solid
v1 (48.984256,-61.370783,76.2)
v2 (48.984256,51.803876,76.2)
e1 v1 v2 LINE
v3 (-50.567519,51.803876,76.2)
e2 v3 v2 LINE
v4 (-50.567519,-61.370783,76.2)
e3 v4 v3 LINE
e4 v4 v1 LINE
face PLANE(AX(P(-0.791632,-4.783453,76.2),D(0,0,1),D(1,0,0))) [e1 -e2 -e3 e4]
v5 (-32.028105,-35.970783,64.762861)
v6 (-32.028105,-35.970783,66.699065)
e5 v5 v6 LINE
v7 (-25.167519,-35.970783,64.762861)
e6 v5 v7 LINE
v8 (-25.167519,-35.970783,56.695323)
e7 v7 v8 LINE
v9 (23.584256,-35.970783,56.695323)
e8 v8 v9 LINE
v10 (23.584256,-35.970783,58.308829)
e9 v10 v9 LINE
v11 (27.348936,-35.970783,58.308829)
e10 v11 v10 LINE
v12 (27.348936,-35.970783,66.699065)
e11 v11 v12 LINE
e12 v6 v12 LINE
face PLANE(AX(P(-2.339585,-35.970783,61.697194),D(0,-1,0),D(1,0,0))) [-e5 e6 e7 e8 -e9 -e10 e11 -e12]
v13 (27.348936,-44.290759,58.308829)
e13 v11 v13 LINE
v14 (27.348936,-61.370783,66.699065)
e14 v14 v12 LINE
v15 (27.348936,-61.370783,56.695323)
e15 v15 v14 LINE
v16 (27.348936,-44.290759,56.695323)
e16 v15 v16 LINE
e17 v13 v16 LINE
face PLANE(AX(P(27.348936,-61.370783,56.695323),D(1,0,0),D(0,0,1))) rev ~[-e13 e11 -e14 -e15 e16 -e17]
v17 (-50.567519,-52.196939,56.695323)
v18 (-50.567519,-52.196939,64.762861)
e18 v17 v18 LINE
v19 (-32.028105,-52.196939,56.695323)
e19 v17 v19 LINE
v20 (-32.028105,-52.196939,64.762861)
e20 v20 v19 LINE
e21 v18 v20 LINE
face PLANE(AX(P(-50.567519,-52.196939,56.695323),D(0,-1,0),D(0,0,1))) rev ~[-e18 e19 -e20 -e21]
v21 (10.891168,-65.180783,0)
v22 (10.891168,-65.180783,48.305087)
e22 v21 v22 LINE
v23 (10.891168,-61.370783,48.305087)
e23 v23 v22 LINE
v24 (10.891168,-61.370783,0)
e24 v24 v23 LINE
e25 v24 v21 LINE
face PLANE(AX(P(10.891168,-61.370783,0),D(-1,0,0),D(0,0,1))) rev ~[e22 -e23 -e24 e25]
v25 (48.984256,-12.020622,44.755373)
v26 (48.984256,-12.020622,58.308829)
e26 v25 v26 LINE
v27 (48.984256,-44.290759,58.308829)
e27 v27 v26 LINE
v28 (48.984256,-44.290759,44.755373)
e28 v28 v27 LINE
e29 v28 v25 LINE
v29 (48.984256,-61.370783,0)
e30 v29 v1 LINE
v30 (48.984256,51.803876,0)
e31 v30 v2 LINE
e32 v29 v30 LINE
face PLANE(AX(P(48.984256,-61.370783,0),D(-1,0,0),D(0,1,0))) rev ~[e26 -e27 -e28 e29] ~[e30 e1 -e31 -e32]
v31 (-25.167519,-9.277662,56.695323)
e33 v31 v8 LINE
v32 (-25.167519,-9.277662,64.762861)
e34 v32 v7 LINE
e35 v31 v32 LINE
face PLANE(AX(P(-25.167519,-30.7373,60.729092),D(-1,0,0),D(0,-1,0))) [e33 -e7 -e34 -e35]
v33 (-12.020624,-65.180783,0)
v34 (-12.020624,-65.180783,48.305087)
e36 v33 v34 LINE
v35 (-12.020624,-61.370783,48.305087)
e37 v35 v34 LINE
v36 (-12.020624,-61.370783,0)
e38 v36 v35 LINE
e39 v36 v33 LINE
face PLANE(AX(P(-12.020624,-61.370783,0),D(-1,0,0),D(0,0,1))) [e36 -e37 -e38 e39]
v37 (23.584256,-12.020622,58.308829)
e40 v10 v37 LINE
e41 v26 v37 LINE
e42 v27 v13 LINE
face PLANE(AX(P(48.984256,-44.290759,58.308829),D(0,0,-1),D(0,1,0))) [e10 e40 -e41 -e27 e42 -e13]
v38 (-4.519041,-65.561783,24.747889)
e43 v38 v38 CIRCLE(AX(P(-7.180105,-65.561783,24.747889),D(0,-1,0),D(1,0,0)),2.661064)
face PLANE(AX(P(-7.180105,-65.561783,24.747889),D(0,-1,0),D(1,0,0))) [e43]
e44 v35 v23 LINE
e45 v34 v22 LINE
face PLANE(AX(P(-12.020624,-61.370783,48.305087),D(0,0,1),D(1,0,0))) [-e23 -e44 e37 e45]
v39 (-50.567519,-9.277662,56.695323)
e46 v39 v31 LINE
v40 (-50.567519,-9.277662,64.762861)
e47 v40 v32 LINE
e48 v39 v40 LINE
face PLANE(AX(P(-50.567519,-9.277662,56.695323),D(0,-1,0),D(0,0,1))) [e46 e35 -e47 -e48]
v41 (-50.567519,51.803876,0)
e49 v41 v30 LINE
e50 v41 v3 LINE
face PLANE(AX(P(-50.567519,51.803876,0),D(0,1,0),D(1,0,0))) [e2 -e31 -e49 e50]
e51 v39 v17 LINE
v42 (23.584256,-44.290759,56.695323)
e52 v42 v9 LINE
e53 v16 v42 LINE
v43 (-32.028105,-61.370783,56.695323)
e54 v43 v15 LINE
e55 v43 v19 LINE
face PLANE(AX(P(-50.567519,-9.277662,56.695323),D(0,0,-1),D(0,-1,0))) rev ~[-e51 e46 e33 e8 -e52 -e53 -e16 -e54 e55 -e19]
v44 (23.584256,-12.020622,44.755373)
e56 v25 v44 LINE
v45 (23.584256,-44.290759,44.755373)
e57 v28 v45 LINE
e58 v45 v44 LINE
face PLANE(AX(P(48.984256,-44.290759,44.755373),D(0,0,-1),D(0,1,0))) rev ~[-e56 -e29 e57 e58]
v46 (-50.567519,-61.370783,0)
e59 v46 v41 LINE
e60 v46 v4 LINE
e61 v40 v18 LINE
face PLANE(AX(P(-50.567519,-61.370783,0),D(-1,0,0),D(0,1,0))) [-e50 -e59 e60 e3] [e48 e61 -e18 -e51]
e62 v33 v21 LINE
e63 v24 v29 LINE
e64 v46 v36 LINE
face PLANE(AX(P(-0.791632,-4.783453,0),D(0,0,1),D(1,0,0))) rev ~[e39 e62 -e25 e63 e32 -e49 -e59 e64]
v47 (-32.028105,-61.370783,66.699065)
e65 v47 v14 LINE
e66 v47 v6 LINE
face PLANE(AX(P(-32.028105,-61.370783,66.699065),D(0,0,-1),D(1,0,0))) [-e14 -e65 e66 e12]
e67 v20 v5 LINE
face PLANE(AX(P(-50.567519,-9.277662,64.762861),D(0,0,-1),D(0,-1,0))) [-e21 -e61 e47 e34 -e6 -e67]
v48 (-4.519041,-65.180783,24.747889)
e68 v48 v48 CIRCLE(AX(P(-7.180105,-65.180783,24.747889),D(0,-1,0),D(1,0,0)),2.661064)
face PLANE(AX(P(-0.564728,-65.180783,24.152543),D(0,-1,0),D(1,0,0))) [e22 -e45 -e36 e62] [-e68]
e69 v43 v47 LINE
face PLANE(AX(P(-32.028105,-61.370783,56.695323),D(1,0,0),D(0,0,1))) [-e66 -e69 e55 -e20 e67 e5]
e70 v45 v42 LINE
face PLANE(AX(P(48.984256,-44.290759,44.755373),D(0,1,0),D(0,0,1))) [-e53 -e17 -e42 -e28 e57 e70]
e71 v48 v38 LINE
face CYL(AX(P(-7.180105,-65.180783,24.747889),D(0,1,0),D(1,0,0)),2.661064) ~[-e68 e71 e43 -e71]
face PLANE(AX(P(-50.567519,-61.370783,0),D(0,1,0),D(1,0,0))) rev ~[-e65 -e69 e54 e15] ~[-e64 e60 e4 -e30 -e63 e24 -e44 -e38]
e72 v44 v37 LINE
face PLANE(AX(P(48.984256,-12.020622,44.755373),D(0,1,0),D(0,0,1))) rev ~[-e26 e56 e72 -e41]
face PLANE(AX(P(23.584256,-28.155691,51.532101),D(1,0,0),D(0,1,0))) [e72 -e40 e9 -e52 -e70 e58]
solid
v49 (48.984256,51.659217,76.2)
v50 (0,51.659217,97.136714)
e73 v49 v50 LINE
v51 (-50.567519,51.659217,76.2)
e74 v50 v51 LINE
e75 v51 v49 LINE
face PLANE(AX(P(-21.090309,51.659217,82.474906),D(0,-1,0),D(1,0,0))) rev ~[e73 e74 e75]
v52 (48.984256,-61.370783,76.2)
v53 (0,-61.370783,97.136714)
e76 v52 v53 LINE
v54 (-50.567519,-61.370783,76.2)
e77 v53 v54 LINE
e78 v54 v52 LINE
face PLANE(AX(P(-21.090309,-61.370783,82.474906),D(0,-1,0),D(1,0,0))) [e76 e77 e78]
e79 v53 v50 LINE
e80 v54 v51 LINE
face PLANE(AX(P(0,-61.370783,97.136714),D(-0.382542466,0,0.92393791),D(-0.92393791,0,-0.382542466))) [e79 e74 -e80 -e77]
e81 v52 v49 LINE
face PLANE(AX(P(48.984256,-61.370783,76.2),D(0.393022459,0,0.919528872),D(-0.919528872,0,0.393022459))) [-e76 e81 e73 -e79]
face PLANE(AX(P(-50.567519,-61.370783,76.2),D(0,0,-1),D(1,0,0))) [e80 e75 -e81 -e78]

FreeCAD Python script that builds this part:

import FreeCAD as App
import Part
import Sketcher
from FreeCAD import Vector
Q = App.Units.Quantity

doc = App.newDocument("Part")
params = doc.addObject("Spreadsheet::Sheet", "Params")
for row, (alias, value) in enumerate([
    ("pad1_length", "3 in"),
    ("pocket1_length", "1 in"),
    ("pad2_length", "0.15 in"),
    ("pocket2_length", "1 in"),
    ("pocket3_length", "1 in"),
    ("pad3_length", "0.015 in"),
    ("pad4_length", "4.45 in"),
], start=1):
    params.set(f"A{row}", alias)
    params.set(f"B{row}", "=" + value)
    params.setAlias(f"B{row}", alias)

body = doc.addObject("PartDesign::Body", "Body")

# Sketch on XY plane
sketch1 = body.newObject("Sketcher::SketchObject", "Sketch")
sketch1.AttachmentSupport = (doc.getObject("XY_Plane"), [""])
sketch1.MapMode = "FlatFace"
sketch1.addGeometry([
    Part.LineSegment(Vector(-51, 52, 0), Vector(-51, -61, 0)),
    Part.LineSegment(Vector(-51, -61, 0), Vector(49, -61, 0)),
    Part.LineSegment(Vector(49, -61, 0), Vector(49, 52, 0)),
    Part.LineSegment(Vector(49, 52, 0), Vector(-51, 52, 0)),
], False)
sketch1.addConstraint([
    Sketcher.Constraint("Coincident", 0, 2, 1, 1),
    Sketcher.Constraint("Coincident", 1, 2, 2, 1),
    Sketcher.Constraint("Coincident", 2, 2, 3, 1),
    Sketcher.Constraint("Coincident", 3, 2, 0, 1),
    Sketcher.Constraint("Vertical", 0),
    Sketcher.Constraint("Horizontal", 1),
    Sketcher.Constraint("Vertical", 2),
    Sketcher.Constraint("Horizontal", 3),
    Sketcher.Constraint("DistanceY", 0, 2, 0, 1, Q("113.174658 mm")),
    Sketcher.Constraint("DistanceX", 1, 1, 1, 2, Q("99.551775 mm")),
    Sketcher.Constraint("DistanceX", 0, 2, -1, 1, Q("50.567519 mm")),
    Sketcher.Constraint("DistanceY", 0, 2, -1, 1, Q("61.370783 mm")),
])
pad1 = body.newObject("PartDesign::Pad", "Pad")
pad1.Profile = sketch1
pad1.setExpression("Length", "Params.pad1_length")

# Sketch on YZ plane
sketch2 = body.newObject("Sketcher::SketchObject", "Sketch001")
sketch2.AttachmentSupport = (doc.getObject("YZ_Plane"), [""])
sketch2.MapMode = "FlatFace"
sketch2.AttachmentOffset = App.Placement(Vector(0, 0, 48.984256), App.Rotation())
sketch2.addGeometry([
    Part.LineSegment(Vector(-44, 58, 0), Vector(-44, 45, 0)),
    Part.LineSegment(Vector(-44, 45, 0), Vector(-12, 45, 0)),
    Part.LineSegment(Vector(-12, 45, 0), Vector(-12, 58, 0)),
    Part.LineSegment(Vector(-12, 58, 0), Vector(-44, 58, 0)),
], False)
sketch2.addConstraint([
    Sketcher.Constraint("Coincident", 0, 2, 1, 1),
    Sketcher.Constraint("Coincident", 1, 2, 2, 1),
    Sketcher.Constraint("Coincident", 2, 2, 3, 1),
    Sketcher.Constraint("Coincident", 3, 2, 0, 1),
    Sketcher.Constraint("Vertical", 0),
    Sketcher.Constraint("Horizontal", 1),
    Sketcher.Constraint("Vertical", 2),
    Sketcher.Constraint("Horizontal", 3),
    Sketcher.Constraint("DistanceX", 1, 1, 1, 2, Q("32.270136 mm")),
    Sketcher.Constraint("DistanceY", 0, 2, 0, 1, Q("13.553455 mm")),
    Sketcher.Constraint("DistanceX", 0, 2, -1, 1, Q("44.290759 mm")),
    Sketcher.Constraint("DistanceY", -1, 1, 2, 2, Q("58.308829 mm")),
])
pocket1 = body.newObject("PartDesign::Pocket", "Pocket")
pocket1.Profile = sketch2
pocket1.setExpression("Length", "Params.pocket1_length")

# Sketch on XZ plane
sketch3 = body.newObject("Sketcher::SketchObject", "Sketch002")
sketch3.AttachmentSupport = (doc.getObject("XZ_Plane"), [""])
sketch3.MapMode = "FlatFace"
sketch3.AttachmentOffset = App.Placement(Vector(0, 0, 61.370783), App.Rotation())
sketch3.addGeometry([
    Part.LineSegment(Vector(-12, 48, 0), Vector(-12, 0, 0)),
    Part.LineSegment(Vector(-12, 0, 0), Vector(11, 0, 0)),
    Part.LineSegment(Vector(11, 0, 0), Vector(11, 48, 0)),
    Part.LineSegment(Vector(11, 48, 0), Vector(-12, 48, 0)),
], False)
sketch3.addConstraint([
    Sketcher.Constraint("Coincident", 0, 2, 1, 1),
    Sketcher.Constraint("Coincident", 1, 2, 2, 1),
    Sketcher.Constraint("Coincident", 2, 2, 3, 1),
    Sketcher.Constraint("Coincident", 3, 2, 0, 1),
    Sketcher.Constraint("Vertical", 0),
    Sketcher.Constraint("Horizontal", 1),
    Sketcher.Constraint("Vertical", 2),
    Sketcher.Constraint("Horizontal", 3),
    Sketcher.Constraint("PointOnObject", 0, 2, -1),
    Sketcher.Constraint("DistanceX", 1, 1, 1, 2, Q("22.911793 mm")),
    Sketcher.Constraint("DistanceY", 0, 2, 0, 1, Q("48.305087 mm")),
    Sketcher.Constraint("DistanceX", -1, 1, 1, 2, Q("10.891168 mm")),
])
pad2 = body.newObject("PartDesign::Pad", "Pad001")
pad2.Profile = sketch3
pad2.setExpression("Length", "Params.pad2_length")

# Sketch on XZ plane
sketch4 = body.newObject("Sketcher::SketchObject", "Sketch003")
sketch4.AttachmentSupport = (doc.getObject("XZ_Plane"), [""])
sketch4.MapMode = "FlatFace"
sketch4.AttachmentOffset = App.Placement(Vector(0, 0, 61.370783), App.Rotation())
sketch4.addGeometry([
    Part.LineSegment(Vector(-32, 67, 0), Vector(-32, 57, 0)),
    Part.LineSegment(Vector(-32, 57, 0), Vector(27, 57, 0)),
    Part.LineSegment(Vector(27, 57, 0), Vector(27, 67, 0)),
    Part.LineSegment(Vector(27, 67, 0), Vector(-32, 67, 0)),
], False)
sketch4.addConstraint([
    Sketcher.Constraint("Coincident", 0, 2, 1, 1),
    Sketcher.Constraint("Coincident", 1, 2, 2, 1),
    Sketcher.Constraint("Coincident", 2, 2, 3, 1),
    Sketcher.Constraint("Coincident", 3, 2, 0, 1),
    Sketcher.Constraint("Vertical", 0),
    Sketcher.Constraint("Horizontal", 1),
    Sketcher.Constraint("Vertical", 2),
    Sketcher.Constraint("Horizontal", 3),
    Sketcher.Constraint("DistanceX", 1, 1, 1, 2, Q("59.377041 mm")),
    Sketcher.Constraint("DistanceY", 0, 2, 0, 1, Q("10.003742 mm")),
    Sketcher.Constraint("DistanceX", 0, 2, -1, 1, Q("32.028105 mm")),
    Sketcher.Constraint("DistanceY", -1, 1, 0, 2, Q("56.695323 mm")),
])
pocket2 = body.newObject("PartDesign::Pocket", "Pocket001")
pocket2.Profile = sketch4
pocket2.setExpression("Length", "Params.pocket2_length")

# Sketch on YZ plane
sketch5 = body.newObject("Sketcher::SketchObject", "Sketch004")
sketch5.AttachmentSupport = (doc.getObject("YZ_Plane"), [""])
sketch5.MapMode = "FlatFace"
sketch5.AttachmentOffset = App.Placement(Vector(0, 0, -50.567519), App.Rotation())
sketch5.addGeometry([
    Part.LineSegment(Vector(-9, 65, 0), Vector(-9, 57, 0)),
    Part.LineSegment(Vector(-9, 57, 0), Vector(-52, 57, 0)),
    Part.LineSegment(Vector(-52, 57, 0), Vector(-52, 65, 0)),
    Part.LineSegment(Vector(-52, 65, 0), Vector(-9, 65, 0)),
], False)
sketch5.addConstraint([
    Sketcher.Constraint("Coincident", 0, 2, 1, 1),
    Sketcher.Constraint("Coincident", 1, 2, 2, 1),
    Sketcher.Constraint("Coincident", 2, 2, 3, 1),
    Sketcher.Constraint("Coincident", 3, 2, 0, 1),
    Sketcher.Constraint("Vertical", 0),
    Sketcher.Constraint("Horizontal", 1),
    Sketcher.Constraint("Vertical", 2),
    Sketcher.Constraint("Horizontal", 3),
    Sketcher.Constraint("DistanceX", 1, 2, 1, 1, Q("42.919276 mm")),
    Sketcher.Constraint("DistanceY", 0, 2, 0, 1, Q("8.067537 mm")),
    Sketcher.Constraint("DistanceX", 1, 2, -1, 1, Q("52.196939 mm")),
    Sketcher.Constraint("DistanceY", -1, 1, 2, 2, Q("64.762861 mm")),
])
pocket3 = body.newObject("PartDesign::Pocket", "Pocket002")
pocket3.Profile = sketch5
pocket3.setExpression("Length", "Params.pocket3_length")
pocket3.Reversed = True

# Sketch on XZ plane
sketch6 = body.newObject("Sketcher::SketchObject", "Sketch005")
sketch6.AttachmentSupport = (doc.getObject("XZ_Plane"), [""])
sketch6.MapMode = "FlatFace"
sketch6.AttachmentOffset = App.Placement(Vector(0, 0, 65.180783), App.Rotation())
sketch6.addGeometry(Part.Circle(Vector(-7.2, 24.7, 0), Vector(0, 0, 1), 2.7), False)
sketch6.addConstraint([
    Sketcher.Constraint("Diameter", 0, Q("5.322128 mm")),
    Sketcher.Constraint("DistanceY", -1, 1, 0, 3, Q("24.747889 mm")),
    Sketcher.Constraint("DistanceX", 0, 3, -1, 1, Q("7.180105 mm")),
])
pad3 = body.newObject("PartDesign::Pad", "Pad002")
pad3.Profile = sketch6
pad3.setExpression("Length", "Params.pad3_length")
body2 = doc.addObject("PartDesign::Body", "Body001")

# Sketch on XZ plane
sketch7 = body2.newObject("Sketcher::SketchObject", "Sketch006")
sketch7.AttachmentSupport = (doc.getObject("XZ_Plane001"), [""])
sketch7.MapMode = "FlatFace"
sketch7.AttachmentOffset = App.Placement(Vector(0, 0, 61.370783), App.Rotation())
sketch7.addGeometry([
    Part.LineSegment(Vector(0, 97, 0), Vector(-51, 76, 0)),
    Part.LineSegment(Vector(-51, 76, 0), Vector(49, 76, 0)),
    Part.LineSegment(Vector(49, 76, 0), Vector(0, 97, 0)),
], False)
sketch7.addConstraint([
    Sketcher.Constraint("Coincident", 0, 2, 1, 1),
    Sketcher.Constraint("Coincident", 1, 2, 2, 1),
    Sketcher.Constraint("Coincident", 2, 2, 0, 1),
    Sketcher.Constraint("Horizontal", 1),
    Sketcher.Constraint("PointOnObject", 2, 2, -2),
    Sketcher.Constraint("DistanceY", -1, 1, 0, 2, Q("3 in")),
    Sketcher.Constraint("Distance", 0, Q("54.73043 mm")),
    Sketcher.Constraint("DistanceX", 1, 1, 1, 2, Q("99.551775 mm")),
    Sketcher.Constraint("DistanceX", 0, 2, -1, 1, Q("50.567519 mm")),
])
pad4 = body2.newObject("PartDesign::Pad", "Pad003")
pad4.Profile = sketch7
pad4.setExpression("Length", "Params.pad4_length")
pad4.Reversed = True

doc.recompute()
